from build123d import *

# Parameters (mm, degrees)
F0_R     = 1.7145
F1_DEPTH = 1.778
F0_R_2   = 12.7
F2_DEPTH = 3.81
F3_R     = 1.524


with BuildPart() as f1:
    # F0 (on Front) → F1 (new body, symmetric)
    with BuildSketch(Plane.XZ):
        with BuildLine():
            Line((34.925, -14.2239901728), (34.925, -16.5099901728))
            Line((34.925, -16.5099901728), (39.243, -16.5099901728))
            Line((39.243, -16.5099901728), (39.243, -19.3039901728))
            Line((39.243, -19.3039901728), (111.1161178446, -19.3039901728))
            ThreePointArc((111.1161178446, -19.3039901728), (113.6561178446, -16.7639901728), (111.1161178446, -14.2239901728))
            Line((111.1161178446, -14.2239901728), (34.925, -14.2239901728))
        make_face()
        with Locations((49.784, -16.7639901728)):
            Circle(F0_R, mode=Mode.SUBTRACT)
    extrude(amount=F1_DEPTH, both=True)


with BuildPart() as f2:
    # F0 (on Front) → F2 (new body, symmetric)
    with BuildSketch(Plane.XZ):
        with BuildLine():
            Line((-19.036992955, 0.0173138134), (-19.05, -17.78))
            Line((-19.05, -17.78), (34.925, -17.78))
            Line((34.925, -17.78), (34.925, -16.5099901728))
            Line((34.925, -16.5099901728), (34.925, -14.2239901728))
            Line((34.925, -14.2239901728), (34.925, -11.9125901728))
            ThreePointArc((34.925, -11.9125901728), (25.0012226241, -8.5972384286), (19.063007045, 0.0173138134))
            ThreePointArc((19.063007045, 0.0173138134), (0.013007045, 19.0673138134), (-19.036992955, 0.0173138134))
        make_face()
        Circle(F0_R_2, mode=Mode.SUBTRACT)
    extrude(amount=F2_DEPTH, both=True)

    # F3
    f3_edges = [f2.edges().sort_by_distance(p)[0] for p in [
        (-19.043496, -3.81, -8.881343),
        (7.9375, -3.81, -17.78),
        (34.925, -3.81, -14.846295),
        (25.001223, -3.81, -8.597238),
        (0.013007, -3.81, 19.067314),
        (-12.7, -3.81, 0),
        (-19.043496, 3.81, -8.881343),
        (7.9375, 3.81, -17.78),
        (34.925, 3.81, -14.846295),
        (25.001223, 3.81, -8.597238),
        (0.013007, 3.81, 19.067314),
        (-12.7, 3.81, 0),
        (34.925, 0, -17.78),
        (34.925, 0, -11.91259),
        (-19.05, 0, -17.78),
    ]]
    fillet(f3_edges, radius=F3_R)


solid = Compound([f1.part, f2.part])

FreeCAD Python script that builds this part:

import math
import FreeCAD as App
import Part
import Sketcher

V = App.Vector
Q = App.Units.Quantity

doc = App.newDocument("Part")
params = doc.addObject("Spreadsheet::Sheet", "Params")
for row, (alias, value) in enumerate([
    ("sketch1_radius", "0.1 in"),
    ("sketch1_diameter", "0.135 in"),
    ("sketch1_width", "0.17 in"),
    ("sketch1_height", "0.09 in"),
    ("pad1_length", "0.14 in"),
    ("sketch2_diameter", "1 in"),
    ("sketch2_radius", "0.65 in"),
    ("sketch2_radius2", "0.75 in"),
    ("sketch2_width", "2.125 in"),
    ("pad2_length", "0.3 in"),
    ("fillet_radius", "0.06 in"),
], start=1):
    params.set(f"A{row}", alias)
    params.set(f"B{row}", "=" + value)
    params.setAlias(f"B{row}", alias)

body = doc.addObject("PartDesign::Body", "Body")

sketch1 = body.newObject("Sketcher::SketchObject", "Sketch")
sketch1.AttachmentSupport = (doc.getObject("XZ_Plane"), [""])
sketch1.MapMode = "FlatFace"
sketch1.addGeometry(Part.LineSegment(V(34.9, -14.2, 0), V(34.9, -16.5, 0)), False)
sketch1.addGeometry(Part.LineSegment(V(34.9, -16.5, 0), V(39.2, -16.5, 0)), False)
sketch1.addGeometry(Part.LineSegment(V(39.2, -16.5, 0), V(39.2, -19.3, 0)), False)
sketch1.addGeometry(Part.LineSegment(V(39.2, -19.3, 0), V(111.1, -19.3, 0)), False)
sketch1.addGeometry(Part.ArcOfCircle(Part.Circle(V(111.1, -16.8, 0), V(0, 0, 1), 2.5), math.radians(-90), math.radians(90)), False)
sketch1.addGeometry(Part.LineSegment(V(111.1, -14.2, 0), V(34.9, -14.2, 0)), False)
sketch1.addGeometry(Part.Circle(V(49.8, -16.8, 0), V(0, 0, 1), 1.7), False)
sketch1.addConstraint(Sketcher.Constraint("Coincident", 0, 2, 1, 1))
sketch1.addConstraint(Sketcher.Constraint("Coincident", 1, 2, 2, 1))
sketch1.addConstraint(Sketcher.Constraint("Coincident", 2, 2, 3, 1))
sketch1.addConstraint(Sketcher.Constraint("Tangent", 3, 2, 4, 1))
sketch1.addConstraint(Sketcher.Constraint("Tangent", 4, 2, 5, 1))
sketch1.addConstraint(Sketcher.Constraint("Coincident", 5, 2, 0, 1))
sketch1.addConstraint(Sketcher.Constraint("Vertical", 0))
sketch1.addConstraint(Sketcher.Constraint("Horizontal", 1))
sketch1.addConstraint(Sketcher.Constraint("Vertical", 2))
sketch1.addConstraint(Sketcher.Constraint("Horizontal", 3))
sketch1.addConstraint(Sketcher.Constraint("Horizontal", 5))
sketch1.addConstraint(Sketcher.Constraint("Horizontal", 4, 3, 6, 3))
sketch1.addConstraint(Sketcher.Constraint("Radius", 4, Q("0.1 in")))
sketch1.addConstraint(Sketcher.Constraint("Diameter", 6, Q("0.135 in")))
sketch1.addConstraint(Sketcher.Constraint("DistanceX", 1, 1, 1, 2, Q("0.17 in")))
sketch1.addConstraint(Sketcher.Constraint("DistanceY", 0, 2, 0, 1, Q("0.09 in")))
sketch1.addConstraint(Sketcher.Constraint("DistanceX", -1, 1, 6, 3, Q("1.96 in")))
sketch1.addConstraint(Sketcher.Constraint("DistanceX", -1, 1, 0, 2, Q("1.375 in")))
sketch1.addConstraint(Sketcher.Constraint("DistanceX", 3, 1, 3, 2, 71.873118))
sketch1.addConstraint(Sketcher.Constraint("DistanceY", 4, 3, -1, 1, 16.76399))
sketch1.setExpression("Constraints[12]", "Params.sketch1_radius")
sketch1.setExpression("Constraints[13]", "Params.sketch1_diameter")
sketch1.setExpression("Constraints[14]", "Params.sketch1_width")
sketch1.setExpression("Constraints[15]", "Params.sketch1_height")
pad1 = body.newObject("PartDesign::Pad", "Pad")
pad1.Profile = sketch1
pad1.setExpression("Length", "Params.pad1_length")
pad1.Midplane = True
body2 = doc.addObject("PartDesign::Body", "Body001")

sketch2 = body2.newObject("Sketcher::SketchObject", "Sketch001")
sketch2.AttachmentSupport = (doc.getObject("XZ_Plane001"), [""])
sketch2.MapMode = "FlatFace"
sketch2.addGeometry(Part.LineSegment(V(-19, 0, 0), V(-19, -18, 0)), False)
sketch2.addGeometry(Part.LineSegment(V(-19, -18, 0), V(35, -18, 0)), False)
sketch2.addGeometry(Part.LineSegment(V(35, -18, 0), V(35, -12, 0)), False)
sketch2.addGeometry(Part.ArcOfCircle(Part.Circle(V(35, 5, 0), V(0, 0, 1), 17), math.radians(-164), math.radians(-90)), False)
sketch2.addGeometry(Part.ArcOfCircle(Part.Circle(V(0, 0, 0), V(0, 0, 1), 19), math.radians(0), math.radians(180)), False)
sketch2.addGeometry(Part.Circle(V(0, 0, 0), V(0, 0, 1), 13), False)
sketch2.addConstraint(Sketcher.Constraint("Coincident", 0, 2, 1, 1))
sketch2.addConstraint(Sketcher.Constraint("Coincident", 1, 2, 2, 1))
sketch2.addConstraint(Sketcher.Constraint("Coincident", 2, 2, 3, 2))
sketch2.addConstraint(Sketcher.Constraint("Coincident", 3, 1, 4, 1))
sketch2.addConstraint(Sketcher.Constraint("Coincident", 4, 2, 0, 1))
sketch2.addConstraint(Sketcher.Constraint("Horizontal", 1))
sketch2.addConstraint(Sketcher.Constraint("Vertical", 2))
sketch2.addConstraint(Sketcher.Constraint("Coincident", 5, 3, -1, 1))
sketch2.addConstraint(Sketcher.Constraint("Horizontal", 4, 3, 3, 1))
sketch2.addConstraint(Sketcher.Constraint("Horizontal", 3, 1, 4, 2))
sketch2.addConstraint(Sketcher.Constraint("Vertical", 3, 3, 1, 2))
sketch2.addConstraint(Sketcher.Constraint("Diameter", 5, Q("1 in")))
sketch2.addConstraint(Sketcher.Constraint("Radius", 3, Q("0.65 in")))
sketch2.addConstraint(Sketcher.Constraint("Radius", 4, Q("0.75 in")))
sketch2.addConstraint(Sketcher.Constraint("DistanceY", 0, 2, -1, 1, Q("0.7 in")))
sketch2.addConstraint(Sketcher.Constraint("DistanceX", 1, 1, 1, 2, Q("2.125 in")))
sketch2.addConstraint(Sketcher.Constraint("DistanceX", 0, 2, -1, 1, Q("0.75 in")))
sketch2.addConstraint(Sketcher.Constraint("DistanceY", 2, 1, 2, 2, 5.86741))
sketch2.addConstraint(Sketcher.Constraint("Distance", 0, 17.797319))
sketch2.setExpression("Constraints[11]", "Params.sketch2_diameter")
sketch2.setExpression("Constraints[12]", "Params.sketch2_radius")
sketch2.setExpression("Constraints[13]", "Params.sketch2_radius2")
sketch2.setExpression("Constraints[15]", "Params.sketch2_width")
pad2 = body2.newObject("PartDesign::Pad", "Pad001")
pad2.Profile = sketch2
pad2.setExpression("Length", "Params.pad2_length")
pad2.Midplane = True
doc.recompute()

fillet = body2.newObject("PartDesign::Fillet", "Fillet")
fillet.Base = (pad2, ["Edge1"])
fillet.UseAllEdges = True
fillet.setExpression("Radius", "Params.fillet_radius")

doc.recompute()
